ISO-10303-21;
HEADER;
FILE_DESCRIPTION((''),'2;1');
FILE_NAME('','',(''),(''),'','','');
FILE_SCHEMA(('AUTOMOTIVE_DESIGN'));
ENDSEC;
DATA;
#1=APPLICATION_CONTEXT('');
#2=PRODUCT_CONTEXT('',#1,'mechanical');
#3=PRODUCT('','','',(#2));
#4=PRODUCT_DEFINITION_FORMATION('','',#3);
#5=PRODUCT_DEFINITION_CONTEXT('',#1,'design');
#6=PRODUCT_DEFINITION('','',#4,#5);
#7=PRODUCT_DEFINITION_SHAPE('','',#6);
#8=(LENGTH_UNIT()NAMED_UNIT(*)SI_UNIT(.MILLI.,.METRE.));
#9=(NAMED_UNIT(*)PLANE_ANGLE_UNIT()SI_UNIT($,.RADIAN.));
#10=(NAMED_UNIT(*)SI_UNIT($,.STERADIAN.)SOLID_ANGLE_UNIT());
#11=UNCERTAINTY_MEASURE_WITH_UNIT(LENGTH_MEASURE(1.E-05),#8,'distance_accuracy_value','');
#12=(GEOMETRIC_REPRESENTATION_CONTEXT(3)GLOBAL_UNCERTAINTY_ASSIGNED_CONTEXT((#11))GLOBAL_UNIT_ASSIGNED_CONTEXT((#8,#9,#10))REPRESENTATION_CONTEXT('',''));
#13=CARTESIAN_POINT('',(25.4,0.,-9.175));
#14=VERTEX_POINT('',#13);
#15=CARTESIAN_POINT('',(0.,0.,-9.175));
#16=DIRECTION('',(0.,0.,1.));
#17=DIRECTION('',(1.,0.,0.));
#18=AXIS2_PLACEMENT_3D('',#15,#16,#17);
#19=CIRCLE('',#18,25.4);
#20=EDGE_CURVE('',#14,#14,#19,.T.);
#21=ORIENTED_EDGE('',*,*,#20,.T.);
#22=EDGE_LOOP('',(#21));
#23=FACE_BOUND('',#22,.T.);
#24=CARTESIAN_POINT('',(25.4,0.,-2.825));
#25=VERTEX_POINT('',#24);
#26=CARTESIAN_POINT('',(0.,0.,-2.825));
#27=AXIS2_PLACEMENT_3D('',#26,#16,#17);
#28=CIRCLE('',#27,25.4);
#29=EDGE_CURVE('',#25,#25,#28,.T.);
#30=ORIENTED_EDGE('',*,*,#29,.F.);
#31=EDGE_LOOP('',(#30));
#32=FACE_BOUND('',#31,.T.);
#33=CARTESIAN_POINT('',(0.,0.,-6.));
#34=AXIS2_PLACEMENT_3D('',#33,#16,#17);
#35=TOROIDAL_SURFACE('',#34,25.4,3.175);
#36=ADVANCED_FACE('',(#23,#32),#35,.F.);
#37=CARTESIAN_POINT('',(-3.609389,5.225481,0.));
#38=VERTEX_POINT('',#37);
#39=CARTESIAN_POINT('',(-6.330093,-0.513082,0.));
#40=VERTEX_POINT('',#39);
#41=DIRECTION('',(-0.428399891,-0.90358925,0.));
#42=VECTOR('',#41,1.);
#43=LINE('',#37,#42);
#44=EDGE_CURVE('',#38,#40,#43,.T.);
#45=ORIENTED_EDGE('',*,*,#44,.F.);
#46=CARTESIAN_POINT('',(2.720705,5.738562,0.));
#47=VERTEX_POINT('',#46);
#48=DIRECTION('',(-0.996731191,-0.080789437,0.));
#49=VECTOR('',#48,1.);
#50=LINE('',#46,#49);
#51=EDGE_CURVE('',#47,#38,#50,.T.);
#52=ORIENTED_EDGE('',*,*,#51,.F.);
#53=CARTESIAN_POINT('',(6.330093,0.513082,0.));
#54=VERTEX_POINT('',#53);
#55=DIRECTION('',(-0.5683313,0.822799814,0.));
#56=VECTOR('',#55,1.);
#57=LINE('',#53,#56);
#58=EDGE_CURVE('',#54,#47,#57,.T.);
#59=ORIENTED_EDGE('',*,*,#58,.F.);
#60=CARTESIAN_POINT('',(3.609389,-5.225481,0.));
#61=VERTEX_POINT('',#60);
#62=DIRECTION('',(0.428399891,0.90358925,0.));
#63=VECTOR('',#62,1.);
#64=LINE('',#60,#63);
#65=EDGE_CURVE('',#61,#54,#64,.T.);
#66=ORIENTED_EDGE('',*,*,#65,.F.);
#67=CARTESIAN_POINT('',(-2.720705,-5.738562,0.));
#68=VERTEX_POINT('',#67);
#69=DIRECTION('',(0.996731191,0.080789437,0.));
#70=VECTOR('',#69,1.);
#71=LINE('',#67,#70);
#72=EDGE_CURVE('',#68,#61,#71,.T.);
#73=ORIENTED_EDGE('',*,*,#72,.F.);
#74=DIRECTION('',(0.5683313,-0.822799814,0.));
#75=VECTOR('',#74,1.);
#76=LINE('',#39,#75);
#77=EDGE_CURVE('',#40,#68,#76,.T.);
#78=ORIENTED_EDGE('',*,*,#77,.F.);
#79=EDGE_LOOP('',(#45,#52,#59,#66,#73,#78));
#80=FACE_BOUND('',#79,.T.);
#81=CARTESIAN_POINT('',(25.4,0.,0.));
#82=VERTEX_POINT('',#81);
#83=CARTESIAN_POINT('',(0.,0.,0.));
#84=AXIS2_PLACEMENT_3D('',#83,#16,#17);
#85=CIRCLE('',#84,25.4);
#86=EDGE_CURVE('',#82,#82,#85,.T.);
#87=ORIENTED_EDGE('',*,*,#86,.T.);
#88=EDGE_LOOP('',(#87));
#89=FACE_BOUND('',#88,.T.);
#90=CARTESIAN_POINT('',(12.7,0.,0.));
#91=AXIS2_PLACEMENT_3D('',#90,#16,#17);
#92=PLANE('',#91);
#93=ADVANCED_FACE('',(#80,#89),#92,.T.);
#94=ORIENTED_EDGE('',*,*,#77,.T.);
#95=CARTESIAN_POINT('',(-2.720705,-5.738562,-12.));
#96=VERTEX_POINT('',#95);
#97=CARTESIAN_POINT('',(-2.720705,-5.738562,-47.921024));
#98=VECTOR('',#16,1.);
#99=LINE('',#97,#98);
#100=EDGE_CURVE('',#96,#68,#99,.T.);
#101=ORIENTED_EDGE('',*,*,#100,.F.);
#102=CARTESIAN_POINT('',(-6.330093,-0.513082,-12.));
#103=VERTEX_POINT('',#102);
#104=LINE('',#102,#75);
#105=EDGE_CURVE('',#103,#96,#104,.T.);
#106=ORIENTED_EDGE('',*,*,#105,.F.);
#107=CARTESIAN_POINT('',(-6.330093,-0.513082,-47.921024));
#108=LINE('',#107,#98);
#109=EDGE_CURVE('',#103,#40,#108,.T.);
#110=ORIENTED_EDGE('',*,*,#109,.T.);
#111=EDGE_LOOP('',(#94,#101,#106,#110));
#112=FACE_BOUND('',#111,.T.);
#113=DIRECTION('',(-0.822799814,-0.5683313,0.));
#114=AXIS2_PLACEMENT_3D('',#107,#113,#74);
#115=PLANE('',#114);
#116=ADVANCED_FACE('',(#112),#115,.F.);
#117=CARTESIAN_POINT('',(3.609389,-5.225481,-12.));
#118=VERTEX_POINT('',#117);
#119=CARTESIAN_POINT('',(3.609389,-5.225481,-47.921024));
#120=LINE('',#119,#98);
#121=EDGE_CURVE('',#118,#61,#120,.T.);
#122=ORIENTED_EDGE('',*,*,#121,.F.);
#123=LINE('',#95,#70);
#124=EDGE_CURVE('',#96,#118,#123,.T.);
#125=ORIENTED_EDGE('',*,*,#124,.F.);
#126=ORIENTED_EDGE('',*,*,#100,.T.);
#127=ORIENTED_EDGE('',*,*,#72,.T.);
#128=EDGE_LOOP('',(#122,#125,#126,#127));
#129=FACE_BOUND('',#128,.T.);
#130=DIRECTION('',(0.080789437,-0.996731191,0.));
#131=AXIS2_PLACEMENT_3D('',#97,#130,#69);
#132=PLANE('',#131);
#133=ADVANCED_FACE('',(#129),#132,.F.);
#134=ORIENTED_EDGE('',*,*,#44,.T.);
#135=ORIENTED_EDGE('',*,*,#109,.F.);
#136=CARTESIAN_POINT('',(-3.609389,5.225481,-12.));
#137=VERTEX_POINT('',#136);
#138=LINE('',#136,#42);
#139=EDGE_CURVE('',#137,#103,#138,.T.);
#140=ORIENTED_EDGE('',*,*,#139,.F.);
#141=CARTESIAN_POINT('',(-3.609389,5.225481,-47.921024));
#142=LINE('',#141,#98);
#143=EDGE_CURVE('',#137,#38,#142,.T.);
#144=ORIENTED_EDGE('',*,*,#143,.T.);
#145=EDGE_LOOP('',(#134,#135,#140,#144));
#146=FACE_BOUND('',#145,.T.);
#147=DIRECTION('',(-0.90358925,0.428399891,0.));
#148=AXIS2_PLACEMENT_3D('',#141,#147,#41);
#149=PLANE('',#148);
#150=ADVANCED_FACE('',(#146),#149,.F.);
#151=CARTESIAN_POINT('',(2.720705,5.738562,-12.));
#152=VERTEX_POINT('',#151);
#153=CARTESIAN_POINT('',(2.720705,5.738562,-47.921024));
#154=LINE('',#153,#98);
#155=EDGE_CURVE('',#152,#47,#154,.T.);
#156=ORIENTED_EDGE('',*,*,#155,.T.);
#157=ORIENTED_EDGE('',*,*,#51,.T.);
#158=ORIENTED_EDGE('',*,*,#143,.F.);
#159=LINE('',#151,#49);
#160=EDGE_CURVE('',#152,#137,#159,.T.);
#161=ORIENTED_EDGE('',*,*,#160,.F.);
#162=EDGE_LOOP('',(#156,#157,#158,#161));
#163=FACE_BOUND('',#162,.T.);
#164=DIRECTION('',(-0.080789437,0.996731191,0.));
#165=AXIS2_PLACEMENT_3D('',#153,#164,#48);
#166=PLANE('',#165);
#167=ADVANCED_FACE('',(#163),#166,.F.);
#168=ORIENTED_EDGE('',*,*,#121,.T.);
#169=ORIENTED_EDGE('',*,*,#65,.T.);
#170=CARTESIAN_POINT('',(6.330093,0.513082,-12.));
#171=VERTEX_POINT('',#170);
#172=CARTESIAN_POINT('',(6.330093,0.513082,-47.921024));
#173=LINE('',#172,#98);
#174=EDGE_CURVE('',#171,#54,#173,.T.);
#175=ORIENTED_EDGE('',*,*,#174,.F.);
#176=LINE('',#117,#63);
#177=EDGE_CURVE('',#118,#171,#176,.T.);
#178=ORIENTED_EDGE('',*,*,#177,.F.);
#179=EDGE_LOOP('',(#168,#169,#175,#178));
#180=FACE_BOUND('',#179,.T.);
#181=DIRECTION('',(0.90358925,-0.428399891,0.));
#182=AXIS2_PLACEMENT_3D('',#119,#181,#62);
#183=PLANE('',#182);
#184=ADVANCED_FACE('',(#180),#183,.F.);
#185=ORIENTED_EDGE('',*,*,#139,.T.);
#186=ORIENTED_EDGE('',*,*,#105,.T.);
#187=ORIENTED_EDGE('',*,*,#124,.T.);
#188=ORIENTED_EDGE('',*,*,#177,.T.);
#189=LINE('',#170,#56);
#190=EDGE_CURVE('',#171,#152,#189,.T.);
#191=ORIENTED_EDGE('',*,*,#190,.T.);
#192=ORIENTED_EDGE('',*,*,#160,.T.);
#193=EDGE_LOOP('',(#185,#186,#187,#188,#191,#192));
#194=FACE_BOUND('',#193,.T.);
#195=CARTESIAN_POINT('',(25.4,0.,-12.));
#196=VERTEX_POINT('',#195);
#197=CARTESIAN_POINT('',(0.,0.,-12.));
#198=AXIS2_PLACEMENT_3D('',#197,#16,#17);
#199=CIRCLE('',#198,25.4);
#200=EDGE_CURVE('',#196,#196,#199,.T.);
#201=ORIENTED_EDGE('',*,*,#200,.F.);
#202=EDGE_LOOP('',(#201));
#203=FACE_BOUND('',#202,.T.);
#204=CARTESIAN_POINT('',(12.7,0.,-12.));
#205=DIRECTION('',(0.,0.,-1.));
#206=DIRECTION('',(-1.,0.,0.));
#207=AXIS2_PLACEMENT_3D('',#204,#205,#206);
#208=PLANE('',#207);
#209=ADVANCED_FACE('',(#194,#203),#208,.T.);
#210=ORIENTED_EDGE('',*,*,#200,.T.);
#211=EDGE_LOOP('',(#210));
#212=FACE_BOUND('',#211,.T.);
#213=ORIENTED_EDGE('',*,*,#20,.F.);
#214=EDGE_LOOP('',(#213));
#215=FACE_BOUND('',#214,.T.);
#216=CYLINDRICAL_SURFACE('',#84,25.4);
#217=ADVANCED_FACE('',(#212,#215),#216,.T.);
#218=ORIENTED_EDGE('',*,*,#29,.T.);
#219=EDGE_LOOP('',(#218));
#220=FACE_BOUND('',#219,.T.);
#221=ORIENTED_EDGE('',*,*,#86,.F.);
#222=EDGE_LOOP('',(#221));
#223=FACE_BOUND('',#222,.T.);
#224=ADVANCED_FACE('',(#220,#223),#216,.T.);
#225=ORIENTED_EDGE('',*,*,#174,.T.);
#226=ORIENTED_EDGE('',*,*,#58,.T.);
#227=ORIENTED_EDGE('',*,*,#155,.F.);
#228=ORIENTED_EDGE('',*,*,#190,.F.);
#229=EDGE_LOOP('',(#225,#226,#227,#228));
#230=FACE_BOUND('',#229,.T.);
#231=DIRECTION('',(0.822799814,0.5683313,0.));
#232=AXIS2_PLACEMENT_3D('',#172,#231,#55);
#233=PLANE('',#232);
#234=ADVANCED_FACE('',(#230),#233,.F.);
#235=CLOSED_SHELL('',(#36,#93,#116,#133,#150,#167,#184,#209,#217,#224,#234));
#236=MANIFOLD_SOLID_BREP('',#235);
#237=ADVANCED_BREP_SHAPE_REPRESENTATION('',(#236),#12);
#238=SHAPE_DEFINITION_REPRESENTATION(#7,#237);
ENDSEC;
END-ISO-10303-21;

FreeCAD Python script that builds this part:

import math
import FreeCAD as App
import Part
import Sketcher
Q = App.Units.Quantity

doc = App.newDocument("Part")
body = doc.addObject("PartDesign::Body", "Body")

# Sketch on XZ plane
sketch1 = body.newObject("Sketcher::SketchObject", "Sketch")
sketch1.AttachmentSupport = (doc.getObject("XZ_Plane"), [""])
sketch1.MapMode = "FlatFace"
sketch1.addGeometry([
    Part.LineSegment(App.Vector(12.7, 0, 0), App.Vector(25.4, 0, 0)),  # 0
    Part.LineSegment(App.Vector(25.4, 0, 0), App.Vector(25.4, -2.825, 0)),  # 1
    Part.ArcOfCircle(Part.Circle(App.Vector(25.4, -6, 0), App.Vector(0, 0, 1), 3.175), math.radians(90), math.radians(270)),  # 2
    Part.LineSegment(App.Vector(25.4, -9.175, 0), App.Vector(25.4, -12, 0)),  # 3
    Part.LineSegment(App.Vector(25.4, -12, 0), App.Vector(12.7, -12, 0)),  # 4
    Part.LineSegment(App.Vector(12.7, -12, 0), App.Vector(12.7, 0, 0)),  # 5
], False)
sketch1.addConstraint([
    Sketcher.Constraint("Coincident", 0, 2, 1, 1),
    Sketcher.Constraint("Coincident", 1, 2, 2, 1),
    Sketcher.Constraint("Coincident", 2, 2, 3, 1),
    Sketcher.Constraint("Coincident", 3, 2, 4, 1),
    Sketcher.Constraint("Coincident", 4, 2, 5, 1),
    Sketcher.Constraint("Coincident", 5, 2, 0, 1),
    Sketcher.Constraint("Horizontal", 0),
    Sketcher.Constraint("Vertical", 1),
    Sketcher.Constraint("Vertical", 3),
    Sketcher.Constraint("Horizontal", 4),
    Sketcher.Constraint("Vertical", 5),
    Sketcher.Constraint("PointOnObject", 0, 2, -1),
    Sketcher.Constraint("Vertical", 2, 3, 0, 2),
    Sketcher.Constraint("Vertical", 1, 2, 2, 2),
    Sketcher.Constraint("Equal", 1, 3),
    Sketcher.Constraint("DistanceX", 0, 1, 0, 2, Q("0.5 in")),
    Sketcher.Constraint("DistanceX", -1, 1, 2, 3, Q("1 in")),
    Sketcher.Constraint("Radius", 2, Q("0.125 in")),
    Sketcher.Constraint("DistanceY", 1, 2, 1, 1, Q("2.825 mm")),
])
revolution = body.newObject("PartDesign::Revolution", "Revolution")
revolution.Profile = sketch1
revolution.ReferenceAxis = (sketch1, ["V_Axis"])
revolution.Angle = 360

# Sketch on XY plane
sketch2 = body.newObject("Sketcher::SketchObject", "Sketch001")
sketch2.AttachmentSupport = (doc.getObject("XY_Plane"), [""])
sketch2.MapMode = "FlatFace"
sketch2.addGeometry([
    Part.Circle(App.Vector(0, 0, 0), App.Vector(0, 0, 1), 12.7),  # 0
    Part.LineSegment(App.Vector(6.330093, 0.513082, 0), App.Vector(3.609389, -5.225481, 0)),  # 1
    Part.LineSegment(App.Vector(3.609389, -5.225481, 0), App.Vector(-2.720705, -5.738562, 0)),  # 2
    Part.LineSegment(App.Vector(-2.720705, -5.738562, 0), App.Vector(-6.330093, -0.513082, 0)),  # 3
    Part.LineSegment(App.Vector(-6.330093, -0.513082, 0), App.Vector(-3.609389, 5.225481, 0)),  # 4
    Part.LineSegment(App.Vector(-3.609389, 5.225481, 0), App.Vector(2.720705, 5.738562, 0)),  # 5
    Part.LineSegment(App.Vector(2.720705, 5.738562, 0), App.Vector(6.330093, 0.513082, 0)),  # 6
], False)
sketch2.addConstraint([
    Sketcher.Constraint("Coincident", 1, 2, 2, 1),
    Sketcher.Constraint("Coincident", 2, 2, 3, 1),
    Sketcher.Constraint("Coincident", 3, 2, 4, 1),
    Sketcher.Constraint("Coincident", 4, 2, 5, 1),
    Sketcher.Constraint("Coincident", 5, 2, 6, 1),
    Sketcher.Constraint("Coincident", 6, 2, 1, 1),
    Sketcher.Constraint("Coincident", 0, 3, -1, 1),
    Sketcher.Constraint("Symmetric", 1, 2, 4, 2, -1, 1),
    Sketcher.Constraint("Symmetric", 2, 2, 5, 2, -1, 1),
    Sketcher.Constraint("Symmetric", 3, 2, 6, 2, -1, 1),
    Sketcher.Constraint("Equal", 1, 2),
    Sketcher.Constraint("Equal", 2, 3),
    Sketcher.Constraint("Diameter", 0, Q("1 in")),
    Sketcher.Constraint("DistanceY", 3, 2, -1, 1, Q("0.0202001 in")),
    Sketcher.Constraint("DistanceY", 2, 2, 1, 2, Q("0.0202001 in")),
    Sketcher.Constraint("DistanceY", 1, 2, 3, 2, Q("4.712399 mm")),
    Sketcher.Constraint("DistanceX", -1, 1, 1, 2, Q("3.609389 mm")),
])
pad1 = body.newObject("PartDesign::Pad", "Pad")
pad1.Profile = sketch2
pad1.Length = 12
pad1.Reversed = True

doc.recompute()
